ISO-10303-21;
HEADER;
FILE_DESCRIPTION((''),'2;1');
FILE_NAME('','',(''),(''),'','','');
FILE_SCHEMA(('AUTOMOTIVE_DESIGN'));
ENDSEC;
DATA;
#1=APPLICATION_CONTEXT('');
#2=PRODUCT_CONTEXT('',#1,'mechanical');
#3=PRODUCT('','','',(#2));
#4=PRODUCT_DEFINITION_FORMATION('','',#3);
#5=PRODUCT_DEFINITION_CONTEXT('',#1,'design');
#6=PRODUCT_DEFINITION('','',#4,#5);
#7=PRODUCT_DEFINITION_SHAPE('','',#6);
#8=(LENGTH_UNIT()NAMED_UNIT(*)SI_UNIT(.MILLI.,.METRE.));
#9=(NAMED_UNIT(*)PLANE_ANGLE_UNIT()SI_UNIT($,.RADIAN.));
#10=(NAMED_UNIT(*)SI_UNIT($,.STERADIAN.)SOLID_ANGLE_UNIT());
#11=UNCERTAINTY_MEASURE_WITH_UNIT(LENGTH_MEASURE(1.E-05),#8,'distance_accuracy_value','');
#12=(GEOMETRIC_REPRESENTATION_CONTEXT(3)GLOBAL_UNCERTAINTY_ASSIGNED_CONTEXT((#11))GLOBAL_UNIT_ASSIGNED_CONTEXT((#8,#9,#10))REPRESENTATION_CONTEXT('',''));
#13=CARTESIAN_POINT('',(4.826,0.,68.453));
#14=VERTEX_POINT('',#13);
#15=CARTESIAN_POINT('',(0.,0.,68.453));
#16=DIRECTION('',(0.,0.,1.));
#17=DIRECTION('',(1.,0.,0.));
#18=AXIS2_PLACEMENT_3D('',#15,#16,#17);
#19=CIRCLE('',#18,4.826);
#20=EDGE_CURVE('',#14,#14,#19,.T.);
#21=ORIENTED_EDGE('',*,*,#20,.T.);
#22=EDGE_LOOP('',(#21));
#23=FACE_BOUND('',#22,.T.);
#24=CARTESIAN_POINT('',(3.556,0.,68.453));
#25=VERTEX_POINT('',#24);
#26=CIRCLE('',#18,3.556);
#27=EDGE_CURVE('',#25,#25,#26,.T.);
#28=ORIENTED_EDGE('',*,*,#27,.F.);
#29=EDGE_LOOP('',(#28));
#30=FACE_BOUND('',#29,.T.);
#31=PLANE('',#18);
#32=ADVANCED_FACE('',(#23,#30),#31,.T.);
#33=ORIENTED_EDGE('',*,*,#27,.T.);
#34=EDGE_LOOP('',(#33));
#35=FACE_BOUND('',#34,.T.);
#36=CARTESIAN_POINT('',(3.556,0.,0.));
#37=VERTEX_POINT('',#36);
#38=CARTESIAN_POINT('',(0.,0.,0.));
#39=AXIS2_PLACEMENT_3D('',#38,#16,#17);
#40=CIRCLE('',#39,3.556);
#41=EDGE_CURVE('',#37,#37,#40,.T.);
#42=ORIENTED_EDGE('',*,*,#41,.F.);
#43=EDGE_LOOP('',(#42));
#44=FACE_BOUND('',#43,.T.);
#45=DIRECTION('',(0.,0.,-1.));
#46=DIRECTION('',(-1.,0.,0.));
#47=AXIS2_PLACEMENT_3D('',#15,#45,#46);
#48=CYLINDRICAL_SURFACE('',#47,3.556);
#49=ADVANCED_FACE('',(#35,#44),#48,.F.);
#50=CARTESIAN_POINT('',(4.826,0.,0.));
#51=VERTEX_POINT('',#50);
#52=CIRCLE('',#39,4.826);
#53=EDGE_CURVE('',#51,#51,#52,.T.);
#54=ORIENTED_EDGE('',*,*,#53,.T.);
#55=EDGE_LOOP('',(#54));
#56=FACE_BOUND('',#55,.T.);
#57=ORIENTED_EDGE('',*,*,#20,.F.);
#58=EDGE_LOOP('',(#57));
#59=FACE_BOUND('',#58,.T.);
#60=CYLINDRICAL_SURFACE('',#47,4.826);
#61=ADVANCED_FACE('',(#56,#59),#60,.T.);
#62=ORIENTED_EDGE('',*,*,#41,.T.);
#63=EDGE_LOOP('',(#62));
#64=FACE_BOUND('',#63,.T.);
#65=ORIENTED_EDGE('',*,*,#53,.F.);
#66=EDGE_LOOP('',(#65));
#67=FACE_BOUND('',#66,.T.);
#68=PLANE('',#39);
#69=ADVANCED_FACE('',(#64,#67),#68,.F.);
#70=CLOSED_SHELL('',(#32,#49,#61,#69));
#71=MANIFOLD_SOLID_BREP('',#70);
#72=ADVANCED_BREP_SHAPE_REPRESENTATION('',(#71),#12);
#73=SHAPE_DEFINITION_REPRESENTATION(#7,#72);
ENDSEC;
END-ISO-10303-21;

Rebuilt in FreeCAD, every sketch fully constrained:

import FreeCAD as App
import Part
import Sketcher
from FreeCAD import Vector
Q = App.Units.Quantity

doc = App.newDocument("Part")
body = doc.addObject("PartDesign::Body", "Body")

# Sketch on XY plane
sketch1 = body.newObject("Sketcher::SketchObject", "Sketch")
sketch1.AttachmentSupport = (doc.getObject("XY_Plane"), [""])
sketch1.MapMode = "FlatFace"
sketch1.addGeometry(Part.Circle(Vector(0, 0, 0), Vector(0, 0, 1), 4.826), False)
sketch1.addGeometry(Part.Circle(Vector(0, 0, 0), Vector(0, 0, 1), 3.556), False)
sketch1.addConstraint(Sketcher.Constraint("Coincident", 0, 3, -1, 1))
sketch1.addConstraint(Sketcher.Constraint("Coincident", 1, 3, -1, 1))
sketch1.addConstraint(Sketcher.Constraint("Diameter", 0, Q("0.38 in")))
sketch1.addConstraint(Sketcher.Constraint("Diameter", 1, Q("0.28 in")))
pad1 = body.newObject("PartDesign::Pad", "Pad")
pad1.Profile = sketch1
pad1.Length = Q("2.695 in")

doc.recompute()
